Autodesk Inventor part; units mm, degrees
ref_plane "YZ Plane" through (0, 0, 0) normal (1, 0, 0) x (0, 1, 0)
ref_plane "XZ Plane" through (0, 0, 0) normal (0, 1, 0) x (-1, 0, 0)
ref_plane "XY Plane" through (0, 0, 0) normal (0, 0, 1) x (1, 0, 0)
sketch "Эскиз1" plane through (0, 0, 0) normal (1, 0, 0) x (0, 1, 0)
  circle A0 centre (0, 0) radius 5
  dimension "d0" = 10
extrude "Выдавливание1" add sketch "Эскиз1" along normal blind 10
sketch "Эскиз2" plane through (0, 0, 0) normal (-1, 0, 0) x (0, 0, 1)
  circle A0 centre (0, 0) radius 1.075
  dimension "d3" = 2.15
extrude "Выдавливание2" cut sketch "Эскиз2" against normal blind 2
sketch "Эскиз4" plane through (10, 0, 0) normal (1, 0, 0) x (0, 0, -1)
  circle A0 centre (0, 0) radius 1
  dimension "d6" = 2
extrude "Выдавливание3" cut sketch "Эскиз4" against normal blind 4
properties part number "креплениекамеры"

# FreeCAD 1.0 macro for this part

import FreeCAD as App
import Part
import Sketcher

V = App.Vector

doc = App.newDocument("Part")
body = doc.addObject("PartDesign::Body", "Body")

# Sketch on YZ plane
sketch1 = body.newObject("Sketcher::SketchObject", "Sketch")
sketch1.AttachmentSupport = (doc.getObject("YZ_Plane"), [""])
sketch1.MapMode = "FlatFace"
sketch1.addGeometry(Part.Circle(V(0, 0, 0), V(0, 0, 1), 5), False)
sketch1.addConstraint(Sketcher.Constraint("Coincident", 0, 3, -1, 1))
sketch1.addConstraint(Sketcher.Constraint("Diameter", 0, 10.0))
pad1 = body.newObject("PartDesign::Pad", "Pad")
pad1.Profile = sketch1
pad1.Length = 10

# Sketch on YZ plane
sketch2 = body.newObject("Sketcher::SketchObject", "Sketch001")
sketch2.AttachmentSupport = (doc.getObject("YZ_Plane"), [""])
sketch2.MapMode = "FlatFace"
sketch2.addGeometry(Part.Circle(V(0, 0, 0), V(0, 0, 1), 1.1), False)
sketch2.addConstraint(Sketcher.Constraint("Coincident", 0, 3, -1, 1))
sketch2.addConstraint(Sketcher.Constraint("Diameter", 0, 2.15))
pocket1 = body.newObject("PartDesign::Pocket", "Pocket")
pocket1.Profile = sketch2
pocket1.Length = 2
pocket1.Reversed = True

# Sketch on YZ plane
sketch3 = body.newObject("Sketcher::SketchObject", "Sketch002")
sketch3.AttachmentSupport = (doc.getObject("YZ_Plane"), [""])
sketch3.MapMode = "FlatFace"
sketch3.AttachmentOffset = App.Placement(V(0, 0, 10), App.Rotation())
sketch3.addGeometry(Part.Circle(V(0, 0, 0), V(0, 0, 1), 1), False)
sketch3.addConstraint(Sketcher.Constraint("Coincident", 0, 3, -1, 1))
sketch3.addConstraint(Sketcher.Constraint("Diameter", 0, 2.0))
pocket2 = body.newObject("PartDesign::Pocket", "Pocket001")
pocket2.Profile = sketch3
pocket2.Length = 4

doc.recompute()
